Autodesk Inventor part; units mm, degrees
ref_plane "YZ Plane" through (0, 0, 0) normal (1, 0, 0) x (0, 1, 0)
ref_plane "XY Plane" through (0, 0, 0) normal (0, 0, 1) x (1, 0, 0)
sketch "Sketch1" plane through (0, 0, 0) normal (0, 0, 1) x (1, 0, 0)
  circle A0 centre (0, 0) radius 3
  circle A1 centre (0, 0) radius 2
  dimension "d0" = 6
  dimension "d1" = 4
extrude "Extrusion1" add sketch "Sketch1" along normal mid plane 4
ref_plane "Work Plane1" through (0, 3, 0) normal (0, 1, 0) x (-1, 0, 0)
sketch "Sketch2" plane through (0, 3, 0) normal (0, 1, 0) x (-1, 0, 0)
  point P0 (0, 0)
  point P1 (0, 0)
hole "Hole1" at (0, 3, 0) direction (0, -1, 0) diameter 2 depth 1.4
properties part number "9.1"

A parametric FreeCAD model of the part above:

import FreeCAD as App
import Part
import Sketcher
from FreeCAD import Vector
Q = App.Units.Quantity

doc = App.newDocument("Part")
body = doc.addObject("PartDesign::Body", "Body")

# Sketch on XY plane
sketch1 = body.newObject("Sketcher::SketchObject", "Sketch")
sketch1.AttachmentSupport = (doc.getObject("XY_Plane"), [""])
sketch1.MapMode = "FlatFace"
sketch1.addGeometry([
    Part.Circle(Vector(0, 0, 0), Vector(0, 0, 1), 3),
    Part.Circle(Vector(0, 0, 0), Vector(0, 0, 1), 2),
], False)
sketch1.addConstraint([
    Sketcher.Constraint("Coincident", 0, 3, -1, 1),
    Sketcher.Constraint("Coincident", 1, 3, -1, 1),
    Sketcher.Constraint("Diameter", 0, Q("6 mm")),
    Sketcher.Constraint("Diameter", 1, Q("4 mm")),
])
pad1 = body.newObject("PartDesign::Pad", "Pad")
pad1.Profile = sketch1
pad1.Length = 4
pad1.Midplane = True

# Sketch on XZ plane
sketch2 = body.newObject("Sketcher::SketchObject", "Sketch001")
sketch2.AttachmentSupport = (doc.getObject("XZ_Plane"), [""])
sketch2.MapMode = "FlatFace"
sketch2.AttachmentOffset = App.Placement(Vector(0, 0, -3), App.Rotation())
sketch2.addGeometry(Part.Circle(Vector(0, 0, 0), Vector(0, 0, 1), 1), False)
sketch2.addConstraint([
    Sketcher.Constraint("Coincident", 0, 3, -1, 1),
    Sketcher.Constraint("Diameter", 0, Q("2 mm")),
])
doc.recompute()
hole = body.newObject("PartDesign::Hole", "Hole")
hole.Profile = sketch2
hole.ThreadType = "None"
hole.Diameter = 2
hole.DepthType = "Dimension"
hole.Depth = 1.4
hole.DrillPoint = "Flat"
hole.Reversed = True

doc.recompute()
